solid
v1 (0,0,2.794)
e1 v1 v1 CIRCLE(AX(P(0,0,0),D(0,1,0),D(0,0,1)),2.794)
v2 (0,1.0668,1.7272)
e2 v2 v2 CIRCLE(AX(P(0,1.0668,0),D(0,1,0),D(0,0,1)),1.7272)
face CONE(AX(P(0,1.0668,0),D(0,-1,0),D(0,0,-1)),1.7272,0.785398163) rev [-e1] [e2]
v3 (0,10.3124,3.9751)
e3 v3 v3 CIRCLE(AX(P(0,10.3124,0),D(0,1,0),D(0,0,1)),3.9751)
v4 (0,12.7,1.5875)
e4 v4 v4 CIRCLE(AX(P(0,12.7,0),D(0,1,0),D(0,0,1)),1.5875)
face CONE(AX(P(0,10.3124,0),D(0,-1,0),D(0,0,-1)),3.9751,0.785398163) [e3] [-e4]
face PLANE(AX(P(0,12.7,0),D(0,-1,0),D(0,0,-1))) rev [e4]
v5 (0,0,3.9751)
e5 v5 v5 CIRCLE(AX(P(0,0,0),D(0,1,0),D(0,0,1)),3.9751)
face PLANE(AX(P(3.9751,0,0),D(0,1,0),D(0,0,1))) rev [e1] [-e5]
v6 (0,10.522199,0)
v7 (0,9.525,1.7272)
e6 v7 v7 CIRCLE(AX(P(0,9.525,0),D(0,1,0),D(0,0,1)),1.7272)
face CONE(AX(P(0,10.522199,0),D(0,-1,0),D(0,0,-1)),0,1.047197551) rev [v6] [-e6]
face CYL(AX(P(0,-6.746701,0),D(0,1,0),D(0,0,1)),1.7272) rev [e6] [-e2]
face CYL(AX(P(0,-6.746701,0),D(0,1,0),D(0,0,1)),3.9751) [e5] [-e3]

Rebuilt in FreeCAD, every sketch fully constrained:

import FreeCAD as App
import Part
import Sketcher

V = App.Vector
Q = App.Units.Quantity


def add_polygon(sketch, points):
    """Adds a closed chain of lines whose ends are joined by coincident constraints."""
    first, n = sketch.GeometryCount, len(points)
    for a, b in zip(points, points[1:] + points[:1]):
        sketch.addGeometry(Part.LineSegment(App.Vector(*a, 0), App.Vector(*b, 0)), False)
    for i in range(n):
        sketch.addConstraint(Sketcher.Constraint("Coincident", first + i, 2, first + (i + 1) % n, 1))

doc = App.newDocument("Part")
body = doc.addObject("PartDesign::Body", "Body")

sketch1 = doc.addObject("Sketcher::SketchObject", "Sketch")
body.addObject(sketch1)
sketch1.AttachmentSupport = (doc.XY_Plane, [""])
sketch1.MapMode = "FlatFace"
add_polygon(sketch1, [(1.7272, 9.525), (1.7272, 1.0668), (2.794, 0), (3.9751, 0), (3.9751, 10.3124), (1.5875, 12.7), (0, 12.7), (0, 10.522199)])
sketch1.addConstraint([
    Sketcher.Constraint("Vertical", 0),
    Sketcher.Constraint("Horizontal", 2),
    Sketcher.Constraint("Vertical", 3),
    Sketcher.Constraint("Horizontal", 5),
    Sketcher.Constraint("Vertical", 6),
    Sketcher.Constraint("PointOnObject", 1, 2, -1),
    Sketcher.Constraint("PointOnObject", 5, 2, -2),
    Sketcher.Constraint("Parallel", 1, 4),
    Sketcher.Constraint("Angle", 1, Q("-45 deg")),
    Sketcher.Constraint("Angle", 7, Q("-30 deg")),
    Sketcher.Constraint("DistanceY", -1, 1, 4, 2, Q("0.5 in")),
    Sketcher.Constraint("DistanceX", 5, 2, 5, 1, Q("0.0625 in")),
    Sketcher.Constraint("DistanceY", 0, 2, 0, 1, Q("0.333 in")),
    Sketcher.Constraint("DistanceY", 3, 1, 3, 2, Q("0.406 in")),
    Sketcher.Constraint("DistanceX", -1, 1, 1, 2, Q("0.11 in")),
    Sketcher.Constraint("DistanceX", -1, 1, 0, 2, Q("0.068 in")),
])
revolution = doc.addObject("PartDesign::Revolution", "Revolution")
body.addObject(revolution)
revolution.Profile = sketch1
revolution.ReferenceAxis = (sketch1, ["V_Axis"])
revolution.Angle = 360

doc.recompute()
